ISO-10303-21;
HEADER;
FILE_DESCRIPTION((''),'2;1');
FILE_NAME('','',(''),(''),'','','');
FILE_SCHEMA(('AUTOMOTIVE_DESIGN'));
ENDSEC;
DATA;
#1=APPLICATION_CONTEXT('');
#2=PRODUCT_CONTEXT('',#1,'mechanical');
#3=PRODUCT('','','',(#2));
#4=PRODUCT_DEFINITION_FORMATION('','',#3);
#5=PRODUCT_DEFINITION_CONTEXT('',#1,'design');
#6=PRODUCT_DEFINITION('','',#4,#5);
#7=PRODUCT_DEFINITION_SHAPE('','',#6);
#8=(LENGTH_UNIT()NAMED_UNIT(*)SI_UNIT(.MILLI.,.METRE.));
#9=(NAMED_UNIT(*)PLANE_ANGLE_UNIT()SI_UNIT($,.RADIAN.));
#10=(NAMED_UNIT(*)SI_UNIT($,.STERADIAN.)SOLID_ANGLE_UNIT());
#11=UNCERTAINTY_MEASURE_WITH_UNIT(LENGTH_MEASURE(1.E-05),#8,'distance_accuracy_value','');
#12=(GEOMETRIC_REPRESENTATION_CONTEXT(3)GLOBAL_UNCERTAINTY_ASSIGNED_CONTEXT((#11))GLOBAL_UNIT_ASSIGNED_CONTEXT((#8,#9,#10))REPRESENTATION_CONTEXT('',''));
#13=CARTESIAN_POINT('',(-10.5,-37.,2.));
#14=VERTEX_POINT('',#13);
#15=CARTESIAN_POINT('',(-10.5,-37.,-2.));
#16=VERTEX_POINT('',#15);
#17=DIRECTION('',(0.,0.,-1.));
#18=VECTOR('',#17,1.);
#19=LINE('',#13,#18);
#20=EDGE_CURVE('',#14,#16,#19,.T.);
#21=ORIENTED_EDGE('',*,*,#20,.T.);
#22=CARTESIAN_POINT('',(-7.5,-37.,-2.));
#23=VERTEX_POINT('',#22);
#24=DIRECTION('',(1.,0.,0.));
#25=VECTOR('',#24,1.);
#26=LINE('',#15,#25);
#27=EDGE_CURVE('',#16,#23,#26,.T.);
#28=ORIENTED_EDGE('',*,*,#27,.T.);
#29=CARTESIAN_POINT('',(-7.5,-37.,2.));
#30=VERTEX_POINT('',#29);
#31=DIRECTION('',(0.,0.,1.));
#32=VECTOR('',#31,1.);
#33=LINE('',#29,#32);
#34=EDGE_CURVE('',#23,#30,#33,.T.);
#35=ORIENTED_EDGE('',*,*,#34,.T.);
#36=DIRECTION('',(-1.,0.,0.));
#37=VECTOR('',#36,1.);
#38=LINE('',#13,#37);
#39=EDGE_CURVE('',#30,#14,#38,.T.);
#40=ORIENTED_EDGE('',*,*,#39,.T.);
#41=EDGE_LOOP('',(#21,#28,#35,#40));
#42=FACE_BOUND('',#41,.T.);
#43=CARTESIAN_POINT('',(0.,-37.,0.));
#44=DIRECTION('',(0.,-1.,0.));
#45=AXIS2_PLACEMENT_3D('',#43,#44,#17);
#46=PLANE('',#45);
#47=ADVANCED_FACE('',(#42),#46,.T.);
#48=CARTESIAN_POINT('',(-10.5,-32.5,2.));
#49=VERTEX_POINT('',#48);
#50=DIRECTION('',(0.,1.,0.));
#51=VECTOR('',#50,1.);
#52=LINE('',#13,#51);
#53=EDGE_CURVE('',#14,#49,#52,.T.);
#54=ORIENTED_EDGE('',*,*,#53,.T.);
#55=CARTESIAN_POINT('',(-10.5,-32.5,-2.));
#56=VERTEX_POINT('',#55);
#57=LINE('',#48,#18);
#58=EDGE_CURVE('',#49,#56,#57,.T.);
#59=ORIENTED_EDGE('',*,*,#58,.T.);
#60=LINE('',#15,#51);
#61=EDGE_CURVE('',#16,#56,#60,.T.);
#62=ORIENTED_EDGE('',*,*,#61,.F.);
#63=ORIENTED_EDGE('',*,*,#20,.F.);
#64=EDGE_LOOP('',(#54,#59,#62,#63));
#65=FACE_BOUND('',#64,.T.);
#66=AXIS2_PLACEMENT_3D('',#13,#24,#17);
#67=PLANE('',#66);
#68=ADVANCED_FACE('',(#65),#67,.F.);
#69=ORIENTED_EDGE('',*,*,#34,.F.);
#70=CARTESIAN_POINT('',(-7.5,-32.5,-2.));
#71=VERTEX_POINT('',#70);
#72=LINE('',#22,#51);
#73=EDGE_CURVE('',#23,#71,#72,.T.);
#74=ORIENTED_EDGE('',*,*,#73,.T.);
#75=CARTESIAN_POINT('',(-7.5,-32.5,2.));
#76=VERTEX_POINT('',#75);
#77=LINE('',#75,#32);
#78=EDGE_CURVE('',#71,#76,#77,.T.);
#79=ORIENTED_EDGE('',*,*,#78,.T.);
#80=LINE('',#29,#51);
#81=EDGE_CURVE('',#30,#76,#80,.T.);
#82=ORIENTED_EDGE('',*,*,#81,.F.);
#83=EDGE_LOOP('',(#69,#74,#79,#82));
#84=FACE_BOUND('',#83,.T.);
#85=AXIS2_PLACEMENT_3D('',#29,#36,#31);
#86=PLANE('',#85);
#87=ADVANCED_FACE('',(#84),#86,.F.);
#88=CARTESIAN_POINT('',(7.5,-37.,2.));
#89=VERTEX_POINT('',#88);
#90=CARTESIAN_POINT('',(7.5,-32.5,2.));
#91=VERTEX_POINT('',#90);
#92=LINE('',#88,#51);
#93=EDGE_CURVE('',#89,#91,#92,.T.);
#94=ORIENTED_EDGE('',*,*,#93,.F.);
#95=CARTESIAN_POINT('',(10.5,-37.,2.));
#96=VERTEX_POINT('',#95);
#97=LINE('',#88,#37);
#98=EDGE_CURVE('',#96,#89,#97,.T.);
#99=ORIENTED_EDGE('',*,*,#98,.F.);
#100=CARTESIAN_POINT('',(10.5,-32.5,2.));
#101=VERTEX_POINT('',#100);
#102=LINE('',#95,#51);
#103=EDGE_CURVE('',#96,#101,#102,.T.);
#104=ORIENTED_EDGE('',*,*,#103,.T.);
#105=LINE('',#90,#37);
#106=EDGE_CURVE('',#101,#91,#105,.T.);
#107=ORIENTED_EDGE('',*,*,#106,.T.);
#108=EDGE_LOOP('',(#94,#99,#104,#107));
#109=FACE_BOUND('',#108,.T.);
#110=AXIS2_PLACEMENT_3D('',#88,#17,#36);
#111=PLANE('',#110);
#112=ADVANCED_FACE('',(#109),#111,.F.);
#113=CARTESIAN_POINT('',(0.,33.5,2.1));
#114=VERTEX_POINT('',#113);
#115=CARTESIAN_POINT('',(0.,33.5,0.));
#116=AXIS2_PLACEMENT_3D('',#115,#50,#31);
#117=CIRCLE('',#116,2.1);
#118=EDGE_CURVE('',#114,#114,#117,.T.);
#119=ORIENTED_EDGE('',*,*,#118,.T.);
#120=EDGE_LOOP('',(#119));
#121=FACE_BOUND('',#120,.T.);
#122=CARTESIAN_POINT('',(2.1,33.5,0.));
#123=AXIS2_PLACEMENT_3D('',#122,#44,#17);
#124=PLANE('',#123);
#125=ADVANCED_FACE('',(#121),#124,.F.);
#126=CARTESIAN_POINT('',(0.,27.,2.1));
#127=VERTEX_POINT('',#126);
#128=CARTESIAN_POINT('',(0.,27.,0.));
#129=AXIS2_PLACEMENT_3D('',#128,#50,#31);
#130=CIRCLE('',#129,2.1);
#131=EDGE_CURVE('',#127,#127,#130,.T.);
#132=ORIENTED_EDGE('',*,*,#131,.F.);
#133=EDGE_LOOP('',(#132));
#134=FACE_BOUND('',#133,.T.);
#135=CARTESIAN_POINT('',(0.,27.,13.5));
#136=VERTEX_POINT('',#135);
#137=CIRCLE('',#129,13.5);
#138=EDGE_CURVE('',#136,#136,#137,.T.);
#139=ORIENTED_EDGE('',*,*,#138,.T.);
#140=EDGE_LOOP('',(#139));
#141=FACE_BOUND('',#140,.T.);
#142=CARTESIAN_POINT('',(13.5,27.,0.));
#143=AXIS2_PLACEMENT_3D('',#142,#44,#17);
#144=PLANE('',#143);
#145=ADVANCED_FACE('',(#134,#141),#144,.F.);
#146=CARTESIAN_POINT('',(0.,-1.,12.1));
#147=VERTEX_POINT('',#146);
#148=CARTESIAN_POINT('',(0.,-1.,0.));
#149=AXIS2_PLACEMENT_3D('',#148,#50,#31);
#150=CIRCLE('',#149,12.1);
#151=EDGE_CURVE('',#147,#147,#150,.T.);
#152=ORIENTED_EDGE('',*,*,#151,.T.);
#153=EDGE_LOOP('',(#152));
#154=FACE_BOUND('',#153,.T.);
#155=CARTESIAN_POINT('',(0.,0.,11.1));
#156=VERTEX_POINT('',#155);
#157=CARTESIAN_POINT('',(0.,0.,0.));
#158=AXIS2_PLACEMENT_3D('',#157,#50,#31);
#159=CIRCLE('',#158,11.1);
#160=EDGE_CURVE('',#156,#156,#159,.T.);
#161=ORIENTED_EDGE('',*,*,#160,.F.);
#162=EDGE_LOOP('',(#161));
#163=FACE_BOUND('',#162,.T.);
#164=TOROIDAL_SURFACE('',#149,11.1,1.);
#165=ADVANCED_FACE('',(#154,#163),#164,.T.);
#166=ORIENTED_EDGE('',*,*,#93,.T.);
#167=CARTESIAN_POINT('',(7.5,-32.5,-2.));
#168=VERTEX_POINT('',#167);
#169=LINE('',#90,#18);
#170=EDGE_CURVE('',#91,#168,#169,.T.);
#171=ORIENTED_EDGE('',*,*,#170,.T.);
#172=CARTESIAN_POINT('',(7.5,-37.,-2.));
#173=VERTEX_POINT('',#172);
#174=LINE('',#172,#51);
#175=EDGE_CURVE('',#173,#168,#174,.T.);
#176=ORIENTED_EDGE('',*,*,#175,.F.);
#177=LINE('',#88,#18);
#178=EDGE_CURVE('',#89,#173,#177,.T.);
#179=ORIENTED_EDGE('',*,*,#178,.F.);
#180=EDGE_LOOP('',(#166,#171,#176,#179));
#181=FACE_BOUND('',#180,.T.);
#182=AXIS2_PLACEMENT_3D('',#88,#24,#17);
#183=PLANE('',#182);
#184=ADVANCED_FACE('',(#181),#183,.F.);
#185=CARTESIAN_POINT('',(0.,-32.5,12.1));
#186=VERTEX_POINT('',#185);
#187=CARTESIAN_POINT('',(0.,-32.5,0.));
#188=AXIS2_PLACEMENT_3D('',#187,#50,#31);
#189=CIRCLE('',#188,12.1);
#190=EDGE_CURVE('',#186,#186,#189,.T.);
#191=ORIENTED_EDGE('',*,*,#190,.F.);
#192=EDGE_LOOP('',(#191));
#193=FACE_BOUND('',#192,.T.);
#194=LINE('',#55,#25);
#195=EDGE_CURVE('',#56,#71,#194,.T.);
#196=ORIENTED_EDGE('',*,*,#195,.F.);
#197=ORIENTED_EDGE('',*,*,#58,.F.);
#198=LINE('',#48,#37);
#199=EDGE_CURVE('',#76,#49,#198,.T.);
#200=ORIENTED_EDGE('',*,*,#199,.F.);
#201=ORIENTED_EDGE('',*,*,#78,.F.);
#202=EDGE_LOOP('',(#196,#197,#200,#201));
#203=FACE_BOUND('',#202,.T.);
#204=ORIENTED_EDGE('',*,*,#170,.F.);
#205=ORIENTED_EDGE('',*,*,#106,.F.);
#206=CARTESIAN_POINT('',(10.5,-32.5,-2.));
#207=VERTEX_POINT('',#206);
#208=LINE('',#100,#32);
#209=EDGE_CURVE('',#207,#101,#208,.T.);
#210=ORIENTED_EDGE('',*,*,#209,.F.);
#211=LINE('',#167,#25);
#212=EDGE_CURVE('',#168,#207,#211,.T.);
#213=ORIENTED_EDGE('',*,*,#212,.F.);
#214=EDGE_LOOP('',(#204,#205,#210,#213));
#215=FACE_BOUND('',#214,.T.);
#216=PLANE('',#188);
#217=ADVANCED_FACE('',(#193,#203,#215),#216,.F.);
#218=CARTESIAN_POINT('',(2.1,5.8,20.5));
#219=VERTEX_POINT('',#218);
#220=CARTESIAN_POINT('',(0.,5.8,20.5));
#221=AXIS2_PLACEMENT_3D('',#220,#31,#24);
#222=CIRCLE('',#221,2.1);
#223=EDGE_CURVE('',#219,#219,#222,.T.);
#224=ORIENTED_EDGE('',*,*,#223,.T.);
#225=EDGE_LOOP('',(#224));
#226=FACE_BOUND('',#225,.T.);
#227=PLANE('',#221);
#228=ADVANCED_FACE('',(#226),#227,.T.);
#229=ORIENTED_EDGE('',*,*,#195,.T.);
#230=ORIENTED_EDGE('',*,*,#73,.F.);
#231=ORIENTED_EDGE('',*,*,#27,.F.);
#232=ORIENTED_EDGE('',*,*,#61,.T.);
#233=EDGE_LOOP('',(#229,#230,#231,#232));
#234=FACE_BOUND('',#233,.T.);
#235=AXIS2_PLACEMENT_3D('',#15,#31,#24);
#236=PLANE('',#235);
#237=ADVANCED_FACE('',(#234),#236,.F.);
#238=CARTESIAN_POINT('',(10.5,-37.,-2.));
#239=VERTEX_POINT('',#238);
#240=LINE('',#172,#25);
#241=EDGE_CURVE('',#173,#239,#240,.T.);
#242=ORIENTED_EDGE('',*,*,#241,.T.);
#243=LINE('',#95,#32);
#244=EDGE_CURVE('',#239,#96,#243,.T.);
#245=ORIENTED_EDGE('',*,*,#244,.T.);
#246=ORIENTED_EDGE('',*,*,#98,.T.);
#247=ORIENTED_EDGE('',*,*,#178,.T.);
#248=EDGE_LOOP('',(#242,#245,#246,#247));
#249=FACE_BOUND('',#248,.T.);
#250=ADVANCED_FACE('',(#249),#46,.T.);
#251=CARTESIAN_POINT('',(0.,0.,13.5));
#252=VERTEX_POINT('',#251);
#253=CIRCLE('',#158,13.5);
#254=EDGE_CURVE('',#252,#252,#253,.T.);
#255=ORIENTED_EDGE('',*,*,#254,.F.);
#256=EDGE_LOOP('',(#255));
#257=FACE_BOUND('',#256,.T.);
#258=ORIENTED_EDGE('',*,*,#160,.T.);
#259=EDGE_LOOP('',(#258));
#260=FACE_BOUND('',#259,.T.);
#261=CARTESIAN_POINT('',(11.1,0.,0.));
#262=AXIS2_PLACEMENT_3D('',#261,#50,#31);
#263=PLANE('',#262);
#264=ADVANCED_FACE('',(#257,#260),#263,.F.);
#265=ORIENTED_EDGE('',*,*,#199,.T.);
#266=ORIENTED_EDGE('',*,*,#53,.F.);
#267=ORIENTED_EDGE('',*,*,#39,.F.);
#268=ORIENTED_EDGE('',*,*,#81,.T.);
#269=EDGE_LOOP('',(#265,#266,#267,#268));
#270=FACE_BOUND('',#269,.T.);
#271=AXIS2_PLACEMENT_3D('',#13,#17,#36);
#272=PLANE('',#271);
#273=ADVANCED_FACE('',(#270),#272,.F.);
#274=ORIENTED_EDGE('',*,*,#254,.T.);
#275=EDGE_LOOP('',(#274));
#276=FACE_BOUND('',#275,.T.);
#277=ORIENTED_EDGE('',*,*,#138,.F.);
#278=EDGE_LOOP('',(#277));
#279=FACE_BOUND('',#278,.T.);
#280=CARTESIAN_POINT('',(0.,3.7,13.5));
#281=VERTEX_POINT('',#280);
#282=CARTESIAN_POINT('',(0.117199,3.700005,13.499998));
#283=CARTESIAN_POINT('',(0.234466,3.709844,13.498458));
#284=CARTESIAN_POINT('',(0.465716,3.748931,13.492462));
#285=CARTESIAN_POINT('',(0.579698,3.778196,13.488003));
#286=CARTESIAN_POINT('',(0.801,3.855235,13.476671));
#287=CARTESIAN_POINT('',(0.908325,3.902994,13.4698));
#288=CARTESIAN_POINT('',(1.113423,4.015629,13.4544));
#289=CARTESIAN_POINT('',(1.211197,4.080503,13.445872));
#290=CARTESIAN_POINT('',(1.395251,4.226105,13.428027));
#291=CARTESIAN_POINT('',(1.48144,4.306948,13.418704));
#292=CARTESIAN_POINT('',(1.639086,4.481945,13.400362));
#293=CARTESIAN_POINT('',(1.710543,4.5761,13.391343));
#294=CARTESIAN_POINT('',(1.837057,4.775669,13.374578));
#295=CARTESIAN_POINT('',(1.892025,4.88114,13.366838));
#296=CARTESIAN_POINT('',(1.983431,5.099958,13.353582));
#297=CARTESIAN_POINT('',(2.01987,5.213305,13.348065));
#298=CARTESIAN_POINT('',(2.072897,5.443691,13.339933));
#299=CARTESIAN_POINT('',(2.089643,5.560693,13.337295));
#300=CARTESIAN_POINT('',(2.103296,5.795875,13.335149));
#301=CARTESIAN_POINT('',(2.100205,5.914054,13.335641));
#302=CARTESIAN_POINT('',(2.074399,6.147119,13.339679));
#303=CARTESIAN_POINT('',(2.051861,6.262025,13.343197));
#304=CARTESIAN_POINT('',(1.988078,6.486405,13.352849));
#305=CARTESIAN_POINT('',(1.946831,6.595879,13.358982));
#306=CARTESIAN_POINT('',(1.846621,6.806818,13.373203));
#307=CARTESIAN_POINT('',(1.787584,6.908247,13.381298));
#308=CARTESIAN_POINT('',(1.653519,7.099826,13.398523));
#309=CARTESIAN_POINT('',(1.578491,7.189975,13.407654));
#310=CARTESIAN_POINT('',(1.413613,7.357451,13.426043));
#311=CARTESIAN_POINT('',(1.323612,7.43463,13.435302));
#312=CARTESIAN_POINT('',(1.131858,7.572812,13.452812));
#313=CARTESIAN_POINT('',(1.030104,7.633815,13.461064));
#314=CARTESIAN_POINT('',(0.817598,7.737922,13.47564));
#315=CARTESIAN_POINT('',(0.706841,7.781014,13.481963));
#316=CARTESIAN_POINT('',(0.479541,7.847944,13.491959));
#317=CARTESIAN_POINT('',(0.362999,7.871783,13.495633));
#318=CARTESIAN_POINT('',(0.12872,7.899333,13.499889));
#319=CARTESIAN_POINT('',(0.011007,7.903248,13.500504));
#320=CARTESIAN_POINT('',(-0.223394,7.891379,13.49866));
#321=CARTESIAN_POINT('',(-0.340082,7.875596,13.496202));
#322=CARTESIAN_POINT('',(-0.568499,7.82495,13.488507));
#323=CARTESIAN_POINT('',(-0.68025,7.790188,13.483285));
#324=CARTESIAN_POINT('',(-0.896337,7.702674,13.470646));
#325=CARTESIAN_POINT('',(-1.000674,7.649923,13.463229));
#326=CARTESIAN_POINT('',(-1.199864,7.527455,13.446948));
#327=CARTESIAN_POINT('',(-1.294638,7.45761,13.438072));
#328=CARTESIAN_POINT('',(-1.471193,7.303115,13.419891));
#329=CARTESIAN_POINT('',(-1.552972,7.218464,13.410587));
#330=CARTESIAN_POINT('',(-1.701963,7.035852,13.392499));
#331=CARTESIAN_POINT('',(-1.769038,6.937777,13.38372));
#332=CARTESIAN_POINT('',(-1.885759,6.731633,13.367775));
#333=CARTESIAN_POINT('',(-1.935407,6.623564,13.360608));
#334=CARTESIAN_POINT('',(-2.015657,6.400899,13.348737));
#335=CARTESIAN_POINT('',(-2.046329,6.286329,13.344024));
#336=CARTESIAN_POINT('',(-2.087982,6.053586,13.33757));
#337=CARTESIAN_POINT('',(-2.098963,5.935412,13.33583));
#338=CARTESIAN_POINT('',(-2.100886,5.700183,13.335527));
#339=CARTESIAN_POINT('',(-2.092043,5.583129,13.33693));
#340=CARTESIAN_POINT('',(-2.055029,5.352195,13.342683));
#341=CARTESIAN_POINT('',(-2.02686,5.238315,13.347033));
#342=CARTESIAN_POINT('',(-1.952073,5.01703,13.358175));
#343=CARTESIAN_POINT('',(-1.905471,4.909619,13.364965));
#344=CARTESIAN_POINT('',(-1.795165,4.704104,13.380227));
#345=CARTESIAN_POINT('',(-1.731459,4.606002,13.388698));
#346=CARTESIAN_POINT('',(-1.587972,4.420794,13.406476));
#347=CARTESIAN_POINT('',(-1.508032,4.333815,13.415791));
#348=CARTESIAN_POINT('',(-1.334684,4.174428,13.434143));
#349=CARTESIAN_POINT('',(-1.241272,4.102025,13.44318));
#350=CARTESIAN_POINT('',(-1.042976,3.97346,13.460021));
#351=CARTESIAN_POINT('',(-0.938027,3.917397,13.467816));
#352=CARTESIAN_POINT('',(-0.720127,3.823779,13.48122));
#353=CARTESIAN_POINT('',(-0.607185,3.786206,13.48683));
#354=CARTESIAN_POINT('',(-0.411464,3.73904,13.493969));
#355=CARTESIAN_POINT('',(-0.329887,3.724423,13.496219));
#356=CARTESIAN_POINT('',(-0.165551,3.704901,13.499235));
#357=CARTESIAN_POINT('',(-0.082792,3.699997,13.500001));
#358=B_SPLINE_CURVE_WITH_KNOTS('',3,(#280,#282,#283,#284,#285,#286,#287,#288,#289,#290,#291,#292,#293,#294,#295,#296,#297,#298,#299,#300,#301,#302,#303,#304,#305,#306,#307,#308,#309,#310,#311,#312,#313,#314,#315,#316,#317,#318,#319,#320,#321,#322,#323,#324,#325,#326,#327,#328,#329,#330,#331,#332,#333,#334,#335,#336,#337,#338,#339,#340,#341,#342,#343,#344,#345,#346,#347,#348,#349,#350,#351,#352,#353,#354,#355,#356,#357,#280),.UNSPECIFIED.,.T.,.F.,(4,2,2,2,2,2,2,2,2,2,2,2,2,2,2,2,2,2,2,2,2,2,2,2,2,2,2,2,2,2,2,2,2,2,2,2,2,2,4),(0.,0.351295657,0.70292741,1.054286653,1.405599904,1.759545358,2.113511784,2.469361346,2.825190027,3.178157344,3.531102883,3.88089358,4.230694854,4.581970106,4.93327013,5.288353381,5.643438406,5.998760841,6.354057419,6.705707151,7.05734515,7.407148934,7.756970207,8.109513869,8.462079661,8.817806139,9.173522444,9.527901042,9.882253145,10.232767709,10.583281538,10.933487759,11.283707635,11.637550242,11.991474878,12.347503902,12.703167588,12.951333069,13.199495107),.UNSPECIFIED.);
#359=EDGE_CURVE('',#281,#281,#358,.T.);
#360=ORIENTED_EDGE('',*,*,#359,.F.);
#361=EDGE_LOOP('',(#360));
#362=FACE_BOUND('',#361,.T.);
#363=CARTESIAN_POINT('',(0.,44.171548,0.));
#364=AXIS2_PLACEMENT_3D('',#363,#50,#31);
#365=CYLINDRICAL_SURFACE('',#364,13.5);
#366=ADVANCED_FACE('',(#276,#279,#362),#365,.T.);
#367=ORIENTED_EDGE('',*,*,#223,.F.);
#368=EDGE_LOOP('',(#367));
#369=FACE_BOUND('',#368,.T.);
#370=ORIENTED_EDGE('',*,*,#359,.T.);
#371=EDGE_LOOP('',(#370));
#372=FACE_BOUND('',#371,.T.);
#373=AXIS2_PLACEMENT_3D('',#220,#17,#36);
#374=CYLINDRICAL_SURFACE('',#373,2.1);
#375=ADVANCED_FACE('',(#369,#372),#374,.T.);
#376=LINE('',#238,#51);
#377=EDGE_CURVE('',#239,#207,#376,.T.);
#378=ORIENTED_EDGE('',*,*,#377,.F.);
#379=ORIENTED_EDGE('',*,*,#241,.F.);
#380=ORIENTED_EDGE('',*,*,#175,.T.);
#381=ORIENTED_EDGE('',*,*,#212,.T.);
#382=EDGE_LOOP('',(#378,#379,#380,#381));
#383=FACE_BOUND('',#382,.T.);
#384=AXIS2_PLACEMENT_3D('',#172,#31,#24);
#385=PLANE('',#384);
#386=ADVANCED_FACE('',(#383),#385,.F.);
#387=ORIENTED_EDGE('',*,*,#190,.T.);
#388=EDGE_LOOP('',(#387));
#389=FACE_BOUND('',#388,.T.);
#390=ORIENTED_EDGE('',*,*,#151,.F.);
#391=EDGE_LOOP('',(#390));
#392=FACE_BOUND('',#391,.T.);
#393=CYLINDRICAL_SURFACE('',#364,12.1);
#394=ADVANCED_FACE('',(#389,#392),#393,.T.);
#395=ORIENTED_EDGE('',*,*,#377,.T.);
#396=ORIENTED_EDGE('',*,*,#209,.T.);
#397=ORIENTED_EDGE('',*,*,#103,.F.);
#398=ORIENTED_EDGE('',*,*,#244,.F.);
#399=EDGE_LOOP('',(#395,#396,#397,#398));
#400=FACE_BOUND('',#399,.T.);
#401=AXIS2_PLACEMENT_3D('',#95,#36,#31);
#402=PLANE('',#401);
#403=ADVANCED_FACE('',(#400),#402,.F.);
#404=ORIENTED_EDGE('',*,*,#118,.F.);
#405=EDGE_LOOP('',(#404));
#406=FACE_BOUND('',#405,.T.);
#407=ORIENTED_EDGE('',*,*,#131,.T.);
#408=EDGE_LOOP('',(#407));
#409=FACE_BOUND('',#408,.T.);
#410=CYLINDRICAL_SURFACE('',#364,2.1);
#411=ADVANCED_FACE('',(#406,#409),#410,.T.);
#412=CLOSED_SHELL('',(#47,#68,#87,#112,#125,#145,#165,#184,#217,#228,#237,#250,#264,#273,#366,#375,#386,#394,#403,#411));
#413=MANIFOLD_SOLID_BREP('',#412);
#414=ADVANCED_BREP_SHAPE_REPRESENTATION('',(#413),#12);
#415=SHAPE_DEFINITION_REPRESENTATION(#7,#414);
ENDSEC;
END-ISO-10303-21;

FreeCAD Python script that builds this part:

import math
import FreeCAD as App
import Part
import Sketcher


def add_polygon(sketch, points):
    """Adds a closed chain of lines whose ends are joined by coincident constraints."""
    first, n = sketch.GeometryCount, len(points)
    for a, b in zip(points, points[1:] + points[:1]):
        sketch.addGeometry(Part.LineSegment(App.Vector(*a, 0), App.Vector(*b, 0)), False)
    for i in range(n):
        sketch.addConstraint(Sketcher.Constraint("Coincident", first + i, 2, first + (i + 1) % n, 1))

doc = App.newDocument("Part")
body = doc.addObject("PartDesign::Body", "Body")

# Sketch on XY plane
sketch1 = doc.addObject("Sketcher::SketchObject", "Sketch")
body.addObject(sketch1)
sketch1.AttachmentSupport = (doc.XY_Plane, [""])
sketch1.MapMode = "FlatFace"
sketch1.addGeometry([
    Part.LineSegment(App.Vector(0, 33.5, 0), App.Vector(0, -32.5, 0)),  # 0
    Part.LineSegment(App.Vector(0, -32.5, 0), App.Vector(12.1, -32.5, 0)),  # 1
    Part.LineSegment(App.Vector(12.1, -32.5, 0), App.Vector(12.1, -1, 0)),  # 2
    Part.ArcOfCircle(Part.Circle(App.Vector(11.1, -1, 0), App.Vector(0, 0, 1), 1), math.radians(0), math.radians(90)),  # 3
    Part.LineSegment(App.Vector(11.1, 0, 0), App.Vector(13.5, 0, 0)),  # 4
    Part.LineSegment(App.Vector(13.5, 0, 0), App.Vector(13.5, 27, 0)),  # 5
    Part.LineSegment(App.Vector(13.5, 27, 0), App.Vector(2.1, 27, 0)),  # 6
    Part.LineSegment(App.Vector(2.1, 27, 0), App.Vector(2.1, 33.5, 0)),  # 7
    Part.LineSegment(App.Vector(2.1, 33.5, 0), App.Vector(0, 33.5, 0)),  # 8
], False)
sketch1.addConstraint([
    Sketcher.Constraint("Coincident", 0, 2, 1, 1),
    Sketcher.Constraint("Coincident", 1, 2, 2, 1),
    Sketcher.Constraint("Tangent", 2, 2, 3, 1),
    Sketcher.Constraint("Tangent", 3, 2, 4, 1),
    Sketcher.Constraint("Coincident", 4, 2, 5, 1),
    Sketcher.Constraint("Coincident", 5, 2, 6, 1),
    Sketcher.Constraint("Coincident", 6, 2, 7, 1),
    Sketcher.Constraint("Coincident", 7, 2, 8, 1),
    Sketcher.Constraint("Coincident", 8, 2, 0, 1),
    Sketcher.Constraint("Vertical", 0),
    Sketcher.Constraint("Horizontal", 1),
    Sketcher.Constraint("Vertical", 2),
    Sketcher.Constraint("Horizontal", 4),
    Sketcher.Constraint("Vertical", 5),
    Sketcher.Constraint("Horizontal", 6),
    Sketcher.Constraint("Vertical", 7),
    Sketcher.Constraint("Horizontal", 8),
    Sketcher.Constraint("PointOnObject", 0, 2, -2),
    Sketcher.Constraint("PointOnObject", 3, 2, -1),
    Sketcher.Constraint("Radius", 3, 1.0),
    Sketcher.Constraint("DistanceY", 0, 2, 0, 1, 66.0),
    Sketcher.Constraint("DistanceY", 5, 1, 5, 2, 27.0),
    Sketcher.Constraint("DistanceX", 1, 1, 1, 2, 12.1),
    Sketcher.Constraint("DistanceX", 4, 1, 4, 2, 2.4),
    Sketcher.Constraint("DistanceX", 6, 2, 6, 1, 11.4),
    Sketcher.Constraint("DistanceY", 2, 1, 2, 2, 31.5),
])
revolution = doc.addObject("PartDesign::Revolution", "Revolution")
body.addObject(revolution)
revolution.Profile = sketch1
revolution.ReferenceAxis = (sketch1, ["V_Axis"])
revolution.Angle = 360

# Sketch on XY plane
sketch2 = doc.addObject("Sketcher::SketchObject", "Sketch001")
body.addObject(sketch2)
sketch2.AttachmentSupport = (doc.XY_Plane, [""])
sketch2.MapMode = "FlatFace"
sketch2.addGeometry(Part.Circle(App.Vector(0, 5.8, 0), App.Vector(0, 0, 1), 2.1), False)
sketch2.addConstraint([
    Sketcher.Constraint("PointOnObject", 0, 3, -2),
    Sketcher.Constraint("Diameter", 0, 4.2),
    Sketcher.Constraint("DistanceY", -1, 1, 0, 3, 5.8),
])
pad1 = doc.addObject("PartDesign::Pad", "Pad")
body.addObject(pad1)
pad1.Profile = sketch2
pad1.Length = 20.5

# Sketch on XZ plane
sketch3 = doc.addObject("Sketcher::SketchObject", "Sketch002")
body.addObject(sketch3)
sketch3.AttachmentSupport = (doc.XZ_Plane, [""])
sketch3.MapMode = "FlatFace"
sketch3.AttachmentOffset = App.Placement(App.Vector(0, 0, 32.5), App.Rotation())
add_polygon(sketch3, [(-10.5, 2), (-10.5, -2), (-7.5, -2), (-7.5, 2)])  # lines 0-3
add_polygon(sketch3, [(7.5, 2), (7.5, -2), (10.5, -2), (10.5, 2)])  # lines 4-7
sketch3.addConstraint([
    Sketcher.Constraint("Vertical", 0),
    Sketcher.Constraint("Horizontal", 1),
    Sketcher.Constraint("Vertical", 2),
    Sketcher.Constraint("Horizontal", 3),
    Sketcher.Constraint("Vertical", 4),
    Sketcher.Constraint("Horizontal", 5),
    Sketcher.Constraint("Vertical", 6),
    Sketcher.Constraint("Horizontal", 7),
    Sketcher.Constraint("Symmetric", 2, 2, 4, 2, -1, 1),
    Sketcher.Constraint("Symmetric", 0, 2, 6, 2, -1, 1),
    Sketcher.Constraint("Horizontal", 1, 2, 4, 2),
    Sketcher.Constraint("DistanceX", 1, 1, 1, 2, 3.0),
    Sketcher.Constraint("DistanceY", 0, 2, 0, 1, 4.0),
    Sketcher.Constraint("DistanceX", 1, 2, 4, 2, 15.0),
])
pad2 = doc.addObject("PartDesign::Pad", "Pad001")
body.addObject(pad2)
pad2.Profile = sketch3
pad2.Length = 4.5

doc.recompute()
